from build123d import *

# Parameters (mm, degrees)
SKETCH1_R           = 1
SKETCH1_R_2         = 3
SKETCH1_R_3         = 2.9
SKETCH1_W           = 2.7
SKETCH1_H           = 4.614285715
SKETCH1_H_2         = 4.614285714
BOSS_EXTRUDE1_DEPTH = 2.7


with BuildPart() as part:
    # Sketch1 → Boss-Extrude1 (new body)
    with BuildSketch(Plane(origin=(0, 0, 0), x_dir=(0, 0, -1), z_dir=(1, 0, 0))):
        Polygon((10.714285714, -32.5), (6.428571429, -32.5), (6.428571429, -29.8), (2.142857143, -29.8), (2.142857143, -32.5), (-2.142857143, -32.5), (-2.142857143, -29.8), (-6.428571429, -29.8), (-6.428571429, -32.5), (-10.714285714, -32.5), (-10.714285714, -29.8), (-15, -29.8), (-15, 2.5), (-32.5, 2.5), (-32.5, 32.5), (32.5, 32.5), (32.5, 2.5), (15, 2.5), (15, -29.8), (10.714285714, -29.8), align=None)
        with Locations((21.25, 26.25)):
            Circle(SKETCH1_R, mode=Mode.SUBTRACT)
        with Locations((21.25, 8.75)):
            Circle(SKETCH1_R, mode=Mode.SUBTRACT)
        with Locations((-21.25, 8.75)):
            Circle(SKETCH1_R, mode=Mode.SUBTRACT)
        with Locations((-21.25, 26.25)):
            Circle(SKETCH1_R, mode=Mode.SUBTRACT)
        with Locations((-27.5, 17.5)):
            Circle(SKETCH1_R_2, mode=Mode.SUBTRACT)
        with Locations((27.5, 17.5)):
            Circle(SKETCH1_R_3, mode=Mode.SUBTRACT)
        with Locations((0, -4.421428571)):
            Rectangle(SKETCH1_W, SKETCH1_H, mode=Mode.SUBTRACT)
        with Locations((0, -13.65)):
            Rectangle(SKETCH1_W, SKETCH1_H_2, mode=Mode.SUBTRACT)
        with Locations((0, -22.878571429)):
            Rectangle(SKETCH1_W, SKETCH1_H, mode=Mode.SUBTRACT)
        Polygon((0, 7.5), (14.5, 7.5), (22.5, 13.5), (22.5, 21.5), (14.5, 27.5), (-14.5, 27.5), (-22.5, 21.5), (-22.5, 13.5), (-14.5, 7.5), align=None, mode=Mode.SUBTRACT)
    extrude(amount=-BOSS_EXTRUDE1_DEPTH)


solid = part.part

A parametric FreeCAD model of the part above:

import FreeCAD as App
import Part
import Sketcher

V = App.Vector
Q = App.Units.Quantity


def add_polygon(sketch, points):
    """Adds a closed chain of lines whose ends are joined by coincident constraints."""
    first, n = sketch.GeometryCount, len(points)
    for a, b in zip(points, points[1:] + points[:1]):
        sketch.addGeometry(Part.LineSegment(App.Vector(*a, 0), App.Vector(*b, 0)), False)
    for i in range(n):
        sketch.addConstraint(Sketcher.Constraint("Coincident", first + i, 2, first + (i + 1) % n, 1))

doc = App.newDocument("Part")
params = doc.addObject("Spreadsheet::Sheet", "Params")
for row, (alias, value) in enumerate([
    ("sketch1_diameter", "2 mm"),
    ("sketch1_diameter2", "6 mm"),
    ("sketch1_diameter3", "5.8 mm"),
    ("sketch1_width", "30 mm"),
    ("sketch1_width2", "8 mm"),
    ("pad1_length", "2.7 mm"),
], start=1):
    params.set(f"A{row}", alias)
    params.set(f"B{row}", "=" + value)
    params.setAlias(f"B{row}", alias)

body = doc.addObject("PartDesign::Body", "Body")

sketch1 = doc.addObject("Sketcher::SketchObject", "Sketch")
body.addObject(sketch1)
sketch1.AttachmentSupport = (doc.YZ_Plane, [""])
sketch1.MapMode = "FlatFace"
add_polygon(sketch1, [(-32.5, -6.4), (-32.5, -10.7), (-29.8, -10.7), (-29.8, -15), (2.5, -15), (2.5, -32.5), (32.5, -32.5), (32.5, 32.5), (2.5, 32.5), (2.5, 15), (-29.8, 15), (-29.8, 10.7), (-32.5, 10.7), (-32.5, 6.4), (-29.8, 6.4), (-29.8, 2.1), (-32.5, 2.1), (-32.5, -2.1), (-29.8, -2.1), (-29.8, -6.4)])
add_polygon(sketch1, [(-25.2, 1.4), (-20.6, 1.4), (-20.6, -1.4), (-25.2, -1.4)])
add_polygon(sketch1, [(-16, 1.4), (-11.3, 1.4), (-11.3, -1.4), (-16, -1.4)])
add_polygon(sketch1, [(-6.7, 1.4), (-2.1, 1.4), (-2.1, -1.4), (-6.7, -1.4)])
sketch1.addGeometry(Part.Circle(V(8.8, -21.2, 0), V(0, 0, 1), 1), False)
sketch1.addGeometry(Part.Circle(V(17.5, -27.5, 0), V(0, 0, 1), 2.9), False)
sketch1.addGeometry(Part.Circle(V(26.2, -21.2, 0), V(0, 0, 1), 1), False)
add_polygon(sketch1, [(7.5, 14.5), (13.5, 22.5), (21.5, 22.5), (27.5, 14.5), (27.5, -14.5), (21.5, -22.5), (13.5, -22.5), (7.5, -14.5)])
sketch1.addGeometry(Part.Circle(V(8.8, 21.2, 0), V(0, 0, 1), 1), False)
sketch1.addGeometry(Part.Circle(V(17.5, 27.5, 0), V(0, 0, 1), 3), False)
sketch1.addGeometry(Part.Circle(V(26.2, 21.2, 0), V(0, 0, 1), 1), False)
sketch1.addConstraint([
    Sketcher.Constraint("Vertical", 0),
    Sketcher.Constraint("Horizontal", 1),
    Sketcher.Constraint("Vertical", 2),
    Sketcher.Constraint("Horizontal", 3),
    Sketcher.Constraint("Vertical", 4),
    Sketcher.Constraint("Horizontal", 5),
    Sketcher.Constraint("Vertical", 6),
    Sketcher.Constraint("Horizontal", 7),
    Sketcher.Constraint("Vertical", 8),
    Sketcher.Constraint("Horizontal", 9),
    Sketcher.Constraint("Vertical", 10),
    Sketcher.Constraint("Horizontal", 11),
    Sketcher.Constraint("Vertical", 12),
    Sketcher.Constraint("Horizontal", 13),
    Sketcher.Constraint("Vertical", 14),
    Sketcher.Constraint("Horizontal", 15),
    Sketcher.Constraint("Vertical", 16),
    Sketcher.Constraint("Horizontal", 17),
    Sketcher.Constraint("Vertical", 18),
    Sketcher.Constraint("Horizontal", 19),
    Sketcher.Constraint("Horizontal", 20),
    Sketcher.Constraint("Vertical", 21),
    Sketcher.Constraint("Horizontal", 22),
    Sketcher.Constraint("Vertical", 23),
    Sketcher.Constraint("Horizontal", 24),
    Sketcher.Constraint("Vertical", 25),
    Sketcher.Constraint("Horizontal", 26),
    Sketcher.Constraint("Vertical", 27),
    Sketcher.Constraint("Horizontal", 28),
    Sketcher.Constraint("Vertical", 29),
    Sketcher.Constraint("Horizontal", 30),
    Sketcher.Constraint("Vertical", 31),
    Sketcher.Constraint("Horizontal", 36),
    Sketcher.Constraint("Vertical", 38),
    Sketcher.Constraint("Horizontal", 40),
    Sketcher.Constraint("Vertical", 42),
    Sketcher.Constraint("Equal", 32, 34),
    Sketcher.Constraint("Equal", 34, 43),
    Sketcher.Constraint("Equal", 43, 45),
    Sketcher.Constraint("Symmetric", 32, 3, 43, 3, -1),
    Sketcher.Constraint("Symmetric", 33, 3, 44, 3, -1),
    Sketcher.Constraint("Symmetric", 34, 3, 45, 3, -1),
    Sketcher.Constraint("Symmetric", 4, 2, 7, 2, -1),
    Sketcher.Constraint("Symmetric", 2, 2, 9, 2, -1),
    Sketcher.Constraint("Symmetric", 0, 2, 11, 2, -1),
    Sketcher.Constraint("Symmetric", 14, 2, 17, 2, -1),
    Sketcher.Constraint("Symmetric", 36, 2, 39, 2, -1),
    Sketcher.Constraint("Parallel", 35, 39),
    Sketcher.Constraint("Parallel", 37, 41),
    Sketcher.Constraint("Horizontal", 32, 3, 34, 3),
    Sketcher.Constraint("Horizontal", 23, 2, 24, 2),
    Sketcher.Constraint("Horizontal", 22, 2, 25, 2),
    Sketcher.Constraint("Horizontal", 27, 2, 28, 2),
    Sketcher.Constraint("Horizontal", 26, 2, 29, 2),
    Sketcher.Constraint("Horizontal", 38, 2, 41, 2),
    Sketcher.Constraint("Horizontal", 37, 2, 42, 2),
    Sketcher.Constraint("Vertical", 10, 2, 13, 2),
    Sketcher.Constraint("Vertical", 12, 2, 15, 2),
    Sketcher.Constraint("Vertical", 35, 2, 40, 2),
    Sketcher.Constraint("Equal", 22, 24),
    Sketcher.Constraint("Equal", 26, 28),
    Sketcher.Constraint("Equal", 0, 2),
    Sketcher.Constraint("Equal", 10, 12),
    Sketcher.Constraint("Equal", 12, 14),
    Sketcher.Constraint("Equal", 14, 16),
    Sketcher.Constraint("Equal", 19, 21),
    Sketcher.Constraint("Diameter", 32, Q("2 mm")),
    Sketcher.Constraint("Diameter", 44, Q("6 mm")),
    Sketcher.Constraint("Diameter", 33, Q("5.8 mm")),
    Sketcher.Constraint("DistanceX", 5, 1, 5, 2, Q("30 mm")),
    Sketcher.Constraint("DistanceX", 36, 1, 36, 2, Q("8 mm")),
    Sketcher.Constraint("DistanceY", 6, 1, 6, 2, Q("65 mm")),
    Sketcher.Constraint("DistanceY", 38, 2, 38, 1, Q("29 mm")),
    Sketcher.Constraint("Distance", 35, Q("10 mm")),
    Sketcher.Constraint("DistanceX", 1, 1, 1, 2, Q("2.7 mm")),
    Sketcher.Constraint("DistanceX", 3, 1, 3, 2, Q("32.3 mm")),
    Sketcher.Constraint("DistanceY", 4, 2, 4, 1, Q("17.5 mm")),
    Sketcher.Constraint("DistanceY", 33, 3, 44, 3, Q("55 mm")),
    Sketcher.Constraint("DistanceX", 0, 2, 33, 3, Q("50 mm")),
    Sketcher.Constraint("DistanceX", 35, 2, 44, 3, Q("4 mm")),
    Sketcher.Constraint("DistanceY", 35, 2, 44, 3, Q("5 mm")),
    Sketcher.Constraint("DistanceX", -1, 1, 33, 3, Q("17.5 mm")),
    Sketcher.Constraint("DistanceX", 32, 3, 34, 3, Q("17.5 mm")),
    Sketcher.Constraint("DistanceY", 32, 3, 43, 3, Q("42.5 mm")),
    Sketcher.Constraint("DistanceX", -1, 1, 32, 3, Q("8.75 mm")),
    Sketcher.Constraint("DistanceY", -1, 1, 20, 2, Q("1.35 mm")),
    Sketcher.Constraint("DistanceX", 20, 1, 20, 2, Q("4.614286 mm")),
    Sketcher.Constraint("DistanceX", 20, 2, -1, 1, Q("20.571429 mm")),
    Sketcher.Constraint("DistanceX", 30, 2, -1, 1, Q("6.728571 mm")),
    Sketcher.Constraint("DistanceX", 20, 2, 24, 2, Q("9.228571 mm")),
])
sketch1.setExpression("Constraints[106]", "Params.sketch1_diameter")
sketch1.setExpression("Constraints[107]", "Params.sketch1_diameter2")
sketch1.setExpression("Constraints[108]", "Params.sketch1_diameter3")
sketch1.setExpression("Constraints[109]", "Params.sketch1_width")
sketch1.setExpression("Constraints[110]", "Params.sketch1_width2")
pad1 = doc.addObject("PartDesign::Pad", "Pad")
body.addObject(pad1)
pad1.Profile = sketch1
pad1.setExpression("Length", "Params.pad1_length")
pad1.Reversed = True

doc.recompute()
